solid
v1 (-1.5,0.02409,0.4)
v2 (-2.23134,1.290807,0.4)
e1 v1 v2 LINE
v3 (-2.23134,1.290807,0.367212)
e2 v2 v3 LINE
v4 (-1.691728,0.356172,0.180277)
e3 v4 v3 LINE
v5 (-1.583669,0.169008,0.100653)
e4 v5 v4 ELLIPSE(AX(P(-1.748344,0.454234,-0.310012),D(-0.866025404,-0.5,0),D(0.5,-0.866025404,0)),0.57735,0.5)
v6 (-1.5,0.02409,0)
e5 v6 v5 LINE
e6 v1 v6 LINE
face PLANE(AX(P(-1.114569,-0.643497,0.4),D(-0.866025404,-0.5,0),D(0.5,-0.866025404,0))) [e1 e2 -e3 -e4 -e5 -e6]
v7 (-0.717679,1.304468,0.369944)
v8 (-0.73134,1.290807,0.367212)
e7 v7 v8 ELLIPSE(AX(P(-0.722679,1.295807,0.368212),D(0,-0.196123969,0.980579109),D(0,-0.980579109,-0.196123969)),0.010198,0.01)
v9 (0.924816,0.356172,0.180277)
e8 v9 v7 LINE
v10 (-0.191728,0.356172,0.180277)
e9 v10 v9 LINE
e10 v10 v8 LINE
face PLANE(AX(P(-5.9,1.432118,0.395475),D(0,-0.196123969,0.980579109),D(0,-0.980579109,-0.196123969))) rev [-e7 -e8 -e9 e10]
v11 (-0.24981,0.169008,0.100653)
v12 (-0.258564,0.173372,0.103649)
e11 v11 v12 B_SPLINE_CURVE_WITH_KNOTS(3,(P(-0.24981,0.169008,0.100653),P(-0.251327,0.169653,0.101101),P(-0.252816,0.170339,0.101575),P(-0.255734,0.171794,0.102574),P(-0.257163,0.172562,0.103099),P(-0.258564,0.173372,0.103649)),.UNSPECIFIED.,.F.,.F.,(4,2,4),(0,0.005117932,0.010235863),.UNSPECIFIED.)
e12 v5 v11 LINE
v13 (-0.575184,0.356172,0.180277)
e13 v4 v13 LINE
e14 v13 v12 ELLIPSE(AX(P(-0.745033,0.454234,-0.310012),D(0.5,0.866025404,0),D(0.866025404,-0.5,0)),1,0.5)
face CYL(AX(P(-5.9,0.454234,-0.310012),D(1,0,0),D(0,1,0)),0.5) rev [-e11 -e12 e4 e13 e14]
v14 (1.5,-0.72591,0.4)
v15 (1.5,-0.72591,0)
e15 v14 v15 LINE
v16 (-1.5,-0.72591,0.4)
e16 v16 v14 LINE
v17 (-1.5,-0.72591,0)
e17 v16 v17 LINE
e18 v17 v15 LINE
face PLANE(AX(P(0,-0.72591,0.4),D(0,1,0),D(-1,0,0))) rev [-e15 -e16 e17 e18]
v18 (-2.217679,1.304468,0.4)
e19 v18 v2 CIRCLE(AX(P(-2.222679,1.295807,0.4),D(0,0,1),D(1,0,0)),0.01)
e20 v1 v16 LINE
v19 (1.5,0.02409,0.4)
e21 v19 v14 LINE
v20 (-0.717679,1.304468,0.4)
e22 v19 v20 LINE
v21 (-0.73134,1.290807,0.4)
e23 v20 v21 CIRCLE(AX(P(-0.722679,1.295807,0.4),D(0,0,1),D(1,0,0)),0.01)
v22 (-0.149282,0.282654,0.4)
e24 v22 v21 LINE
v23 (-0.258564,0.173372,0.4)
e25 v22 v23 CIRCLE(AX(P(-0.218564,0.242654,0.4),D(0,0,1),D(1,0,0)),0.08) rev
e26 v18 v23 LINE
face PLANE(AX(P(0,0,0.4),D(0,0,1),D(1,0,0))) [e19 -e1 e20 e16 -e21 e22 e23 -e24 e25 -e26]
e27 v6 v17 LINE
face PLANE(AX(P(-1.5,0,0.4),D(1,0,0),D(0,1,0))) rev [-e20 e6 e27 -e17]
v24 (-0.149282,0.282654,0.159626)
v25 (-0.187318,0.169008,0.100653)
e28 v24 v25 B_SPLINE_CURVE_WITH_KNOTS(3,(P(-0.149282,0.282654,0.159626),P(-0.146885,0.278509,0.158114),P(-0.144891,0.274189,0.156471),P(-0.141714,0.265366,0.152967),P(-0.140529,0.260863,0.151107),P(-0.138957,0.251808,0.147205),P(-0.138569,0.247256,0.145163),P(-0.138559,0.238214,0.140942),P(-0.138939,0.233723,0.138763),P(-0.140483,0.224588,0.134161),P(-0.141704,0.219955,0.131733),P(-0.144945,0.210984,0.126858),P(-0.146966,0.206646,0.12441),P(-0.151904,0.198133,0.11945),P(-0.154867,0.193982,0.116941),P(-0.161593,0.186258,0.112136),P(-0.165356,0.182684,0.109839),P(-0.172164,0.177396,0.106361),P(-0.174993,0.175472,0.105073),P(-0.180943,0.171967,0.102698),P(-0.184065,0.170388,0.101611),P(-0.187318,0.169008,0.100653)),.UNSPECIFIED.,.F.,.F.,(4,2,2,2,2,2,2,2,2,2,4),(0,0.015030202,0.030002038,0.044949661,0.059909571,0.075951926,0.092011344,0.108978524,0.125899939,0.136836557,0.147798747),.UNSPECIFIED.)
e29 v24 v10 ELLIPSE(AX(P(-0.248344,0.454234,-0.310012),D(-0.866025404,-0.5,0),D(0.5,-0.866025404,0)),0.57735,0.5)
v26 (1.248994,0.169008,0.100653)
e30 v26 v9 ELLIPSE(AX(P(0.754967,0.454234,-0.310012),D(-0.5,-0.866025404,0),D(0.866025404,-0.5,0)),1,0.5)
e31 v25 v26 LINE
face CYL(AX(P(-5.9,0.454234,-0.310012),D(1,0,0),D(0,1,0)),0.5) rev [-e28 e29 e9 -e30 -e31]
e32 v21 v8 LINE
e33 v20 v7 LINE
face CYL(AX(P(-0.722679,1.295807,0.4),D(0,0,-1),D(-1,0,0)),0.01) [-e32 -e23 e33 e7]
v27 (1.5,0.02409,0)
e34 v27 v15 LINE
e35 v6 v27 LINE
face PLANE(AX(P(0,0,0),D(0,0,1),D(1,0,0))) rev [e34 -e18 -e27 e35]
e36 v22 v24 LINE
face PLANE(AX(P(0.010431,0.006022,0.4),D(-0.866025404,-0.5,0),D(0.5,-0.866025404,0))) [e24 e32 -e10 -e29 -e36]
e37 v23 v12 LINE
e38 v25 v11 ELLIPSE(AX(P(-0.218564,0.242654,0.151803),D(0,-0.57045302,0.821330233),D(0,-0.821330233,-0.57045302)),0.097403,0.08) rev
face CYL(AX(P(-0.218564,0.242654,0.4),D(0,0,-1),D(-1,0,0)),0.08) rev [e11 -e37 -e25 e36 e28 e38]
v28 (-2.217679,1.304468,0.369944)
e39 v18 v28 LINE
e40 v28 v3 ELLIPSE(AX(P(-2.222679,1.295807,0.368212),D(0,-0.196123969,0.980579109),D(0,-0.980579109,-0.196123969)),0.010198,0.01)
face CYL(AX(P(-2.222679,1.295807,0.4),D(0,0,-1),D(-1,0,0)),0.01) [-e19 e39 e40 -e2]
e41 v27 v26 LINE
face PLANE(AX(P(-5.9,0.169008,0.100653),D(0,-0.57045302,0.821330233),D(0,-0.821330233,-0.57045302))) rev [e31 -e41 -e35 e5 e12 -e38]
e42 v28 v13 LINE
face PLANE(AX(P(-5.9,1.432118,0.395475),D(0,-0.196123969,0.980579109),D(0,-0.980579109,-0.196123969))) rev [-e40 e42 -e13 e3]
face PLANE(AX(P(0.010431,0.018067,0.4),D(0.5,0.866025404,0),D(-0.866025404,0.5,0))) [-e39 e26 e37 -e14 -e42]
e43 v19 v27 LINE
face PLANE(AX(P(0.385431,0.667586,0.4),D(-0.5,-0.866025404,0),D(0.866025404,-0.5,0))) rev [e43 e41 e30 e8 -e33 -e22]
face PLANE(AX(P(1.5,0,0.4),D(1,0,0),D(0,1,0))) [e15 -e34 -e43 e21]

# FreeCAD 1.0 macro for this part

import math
import FreeCAD as App
import Part
import Sketcher

V = App.Vector
Q = App.Units.Quantity

doc = App.newDocument("Part")
params = doc.addObject("Spreadsheet::Sheet", "Params")
for row, (alias, value) in enumerate([
    ("sketch1_width", "3 mm"),
    ("sketch1_radius", "0.01 mm"),
    ("sketch1_radius2", "0.08 mm"),
    ("sketch1_height", "0.75 mm"),
    ("pad1_length", "0.4 mm"),
    ("sketch2_radius", "0.5 mm"),
    ("pocket1_length", "7.4 mm"),
], start=1):
    params.set(f"A{row}", alias)
    params.set(f"B{row}", "=" + value)
    params.setAlias(f"B{row}", alias)

body = doc.addObject("PartDesign::Body", "Body")

sketch1 = body.newObject("Sketcher::SketchObject", "Sketch")
sketch1.AttachmentSupport = (doc.getObject("XY_Plane"), [""])
sketch1.MapMode = "FlatFace"
sketch1.addGeometry(Part.LineSegment(V(-1.5, 0.024, 0), V(-1.5, -0.726, 0)), False)
sketch1.addGeometry(Part.LineSegment(V(-1.5, -0.726, 0), V(1.5, -0.726, 0)), False)
sketch1.addGeometry(Part.LineSegment(V(1.5, -0.726, 0), V(1.5, 0.024, 0)), False)
sketch1.addGeometry(Part.LineSegment(V(1.5, 0.024, 0), V(-0.718, 1.304, 0)), False)
sketch1.addGeometry(Part.ArcOfCircle(Part.Circle(V(-0.723, 1.296, 0), V(0, 0, 1), 0.01), math.radians(60), math.radians(210)), False)
sketch1.addGeometry(Part.LineSegment(V(-0.731, 1.291, 0), V(-0.149, 0.283, 0)), False)
sketch1.addGeometry(Part.ArcOfCircle(Part.Circle(V(-0.219, 0.243, 0), V(0, 0, 1), 0.08), math.radians(-120), math.radians(30)), False)
sketch1.addGeometry(Part.LineSegment(V(-0.259, 0.173, 0), V(-2.218, 1.304, 0)), False)
sketch1.addGeometry(Part.ArcOfCircle(Part.Circle(V(-2.223, 1.296, 0), V(0, 0, 1), 0.01), math.radians(60), math.radians(210)), False)
sketch1.addGeometry(Part.LineSegment(V(-2.231, 1.291, 0), V(-1.5, 0.024, 0)), False)
sketch1.addConstraint(Sketcher.Constraint("Coincident", 0, 2, 1, 1))
sketch1.addConstraint(Sketcher.Constraint("Coincident", 1, 2, 2, 1))
sketch1.addConstraint(Sketcher.Constraint("Coincident", 2, 2, 3, 1))
sketch1.addConstraint(Sketcher.Constraint("Tangent", 3, 2, 4, 1))
sketch1.addConstraint(Sketcher.Constraint("Tangent", 4, 2, 5, 1))
sketch1.addConstraint(Sketcher.Constraint("Tangent", 5, 2, 6, 2))
sketch1.addConstraint(Sketcher.Constraint("Tangent", 6, 1, 7, 1))
sketch1.addConstraint(Sketcher.Constraint("Tangent", 7, 2, 8, 1))
sketch1.addConstraint(Sketcher.Constraint("Tangent", 8, 2, 9, 1))
sketch1.addConstraint(Sketcher.Constraint("Coincident", 9, 2, 0, 1))
sketch1.addConstraint(Sketcher.Constraint("Vertical", 0))
sketch1.addConstraint(Sketcher.Constraint("Horizontal", 1))
sketch1.addConstraint(Sketcher.Constraint("Vertical", 2))
sketch1.addConstraint(Sketcher.Constraint("Equal", 4, 8))
sketch1.addConstraint(Sketcher.Constraint("Symmetric", 2, 2, 9, 2, -2))
sketch1.addConstraint(Sketcher.Constraint("Parallel", 3, 7))
sketch1.addConstraint(Sketcher.Constraint("Parallel", 5, 9))
sketch1.addConstraint(Sketcher.Constraint("Horizontal", 4, 3, 8, 3))
sketch1.addConstraint(Sketcher.Constraint("DistanceX", 1, 1, 1, 2, 3.0))
sketch1.addConstraint(Sketcher.Constraint("Angle", 3, Q("150 deg")))
sketch1.addConstraint(Sketcher.Constraint("Angle", 5, Q("-60 deg")))
sketch1.addConstraint(Sketcher.Constraint("Radius", 4, 0.01))
sketch1.addConstraint(Sketcher.Constraint("Radius", 6, 0.08))
sketch1.addConstraint(Sketcher.Constraint("DistanceY", 0, 2, 0, 1, 0.75))
sketch1.addConstraint(Sketcher.Constraint("DistanceX", 8, 3, 4, 3, 1.5))
sketch1.addConstraint(Sketcher.Constraint("DistanceY", 0, 2, -1, 1, 0.72591))
sketch1.setExpression("Constraints[18]", "Params.sketch1_width")
sketch1.setExpression("Constraints[21]", "Params.sketch1_radius")
sketch1.setExpression("Constraints[22]", "Params.sketch1_radius2")
sketch1.setExpression("Constraints[23]", "Params.sketch1_height")
pad1 = body.newObject("PartDesign::Pad", "Pad")
pad1.Profile = sketch1
pad1.setExpression("Length", "Params.pad1_length")

sketch2 = body.newObject("Sketcher::SketchObject", "Sketch001")
sketch2.AttachmentSupport = (doc.getObject("YZ_Plane"), [""])
sketch2.MapMode = "FlatFace"
sketch2.AttachmentOffset = App.Placement(V(0, 0, 1.5), App.Rotation())
sketch2.addGeometry(Part.LineSegment(V(1.43, 0.4, 0), V(0.36, 0.18, 0)), False)
sketch2.addGeometry(Part.ArcOfCircle(Part.Circle(V(0.45, -0.31, 0), V(0, 0, 1), 0.5), math.radians(101), math.radians(125)), False)
sketch2.addGeometry(Part.LineSegment(V(0.17, 0.1, 0), V(0.02, 0, 0)), False)
sketch2.addGeometry(Part.LineSegment(V(0.02, 0, 0), V(1.43, 0, 0)), False)
sketch2.addGeometry(Part.LineSegment(V(1.43, 0, 0), V(1.43, 0.4, 0)), False)
sketch2.addConstraint(Sketcher.Constraint("Tangent", 0, 2, 1, 1))
sketch2.addConstraint(Sketcher.Constraint("Tangent", 1, 2, 2, 1))
sketch2.addConstraint(Sketcher.Constraint("Coincident", 2, 2, 3, 1))
sketch2.addConstraint(Sketcher.Constraint("Coincident", 3, 2, 4, 1))
sketch2.addConstraint(Sketcher.Constraint("Coincident", 4, 2, 0, 1))
sketch2.addConstraint(Sketcher.Constraint("Horizontal", 3))
sketch2.addConstraint(Sketcher.Constraint("Vertical", 4))
sketch2.addConstraint(Sketcher.Constraint("PointOnObject", 2, 2, -1))
sketch2.addConstraint(Sketcher.Constraint("Radius", 1, 0.5))
sketch2.addConstraint(Sketcher.Constraint("DistanceX", 3, 1, 3, 2, 1.408028))
sketch2.addConstraint(Sketcher.Constraint("DistanceY", 4, 1, 4, 2, 0.395475))
sketch2.addConstraint(Sketcher.Constraint("DistanceX", -1, 1, 2, 2, 0.02409))
sketch2.addConstraint(Sketcher.Constraint("DistanceX", 0, 2, 1, 3, 0.098062))
sketch2.addConstraint(Sketcher.Constraint("DistanceX", 2, 2, 1, 2, 0.144918))
sketch2.setExpression("Constraints[8]", "Params.sketch2_radius")
pocket1 = body.newObject("PartDesign::Pocket", "Pocket")
pocket1.Profile = sketch2
pocket1.setExpression("Length", "Params.pocket1_length")

doc.recompute()
